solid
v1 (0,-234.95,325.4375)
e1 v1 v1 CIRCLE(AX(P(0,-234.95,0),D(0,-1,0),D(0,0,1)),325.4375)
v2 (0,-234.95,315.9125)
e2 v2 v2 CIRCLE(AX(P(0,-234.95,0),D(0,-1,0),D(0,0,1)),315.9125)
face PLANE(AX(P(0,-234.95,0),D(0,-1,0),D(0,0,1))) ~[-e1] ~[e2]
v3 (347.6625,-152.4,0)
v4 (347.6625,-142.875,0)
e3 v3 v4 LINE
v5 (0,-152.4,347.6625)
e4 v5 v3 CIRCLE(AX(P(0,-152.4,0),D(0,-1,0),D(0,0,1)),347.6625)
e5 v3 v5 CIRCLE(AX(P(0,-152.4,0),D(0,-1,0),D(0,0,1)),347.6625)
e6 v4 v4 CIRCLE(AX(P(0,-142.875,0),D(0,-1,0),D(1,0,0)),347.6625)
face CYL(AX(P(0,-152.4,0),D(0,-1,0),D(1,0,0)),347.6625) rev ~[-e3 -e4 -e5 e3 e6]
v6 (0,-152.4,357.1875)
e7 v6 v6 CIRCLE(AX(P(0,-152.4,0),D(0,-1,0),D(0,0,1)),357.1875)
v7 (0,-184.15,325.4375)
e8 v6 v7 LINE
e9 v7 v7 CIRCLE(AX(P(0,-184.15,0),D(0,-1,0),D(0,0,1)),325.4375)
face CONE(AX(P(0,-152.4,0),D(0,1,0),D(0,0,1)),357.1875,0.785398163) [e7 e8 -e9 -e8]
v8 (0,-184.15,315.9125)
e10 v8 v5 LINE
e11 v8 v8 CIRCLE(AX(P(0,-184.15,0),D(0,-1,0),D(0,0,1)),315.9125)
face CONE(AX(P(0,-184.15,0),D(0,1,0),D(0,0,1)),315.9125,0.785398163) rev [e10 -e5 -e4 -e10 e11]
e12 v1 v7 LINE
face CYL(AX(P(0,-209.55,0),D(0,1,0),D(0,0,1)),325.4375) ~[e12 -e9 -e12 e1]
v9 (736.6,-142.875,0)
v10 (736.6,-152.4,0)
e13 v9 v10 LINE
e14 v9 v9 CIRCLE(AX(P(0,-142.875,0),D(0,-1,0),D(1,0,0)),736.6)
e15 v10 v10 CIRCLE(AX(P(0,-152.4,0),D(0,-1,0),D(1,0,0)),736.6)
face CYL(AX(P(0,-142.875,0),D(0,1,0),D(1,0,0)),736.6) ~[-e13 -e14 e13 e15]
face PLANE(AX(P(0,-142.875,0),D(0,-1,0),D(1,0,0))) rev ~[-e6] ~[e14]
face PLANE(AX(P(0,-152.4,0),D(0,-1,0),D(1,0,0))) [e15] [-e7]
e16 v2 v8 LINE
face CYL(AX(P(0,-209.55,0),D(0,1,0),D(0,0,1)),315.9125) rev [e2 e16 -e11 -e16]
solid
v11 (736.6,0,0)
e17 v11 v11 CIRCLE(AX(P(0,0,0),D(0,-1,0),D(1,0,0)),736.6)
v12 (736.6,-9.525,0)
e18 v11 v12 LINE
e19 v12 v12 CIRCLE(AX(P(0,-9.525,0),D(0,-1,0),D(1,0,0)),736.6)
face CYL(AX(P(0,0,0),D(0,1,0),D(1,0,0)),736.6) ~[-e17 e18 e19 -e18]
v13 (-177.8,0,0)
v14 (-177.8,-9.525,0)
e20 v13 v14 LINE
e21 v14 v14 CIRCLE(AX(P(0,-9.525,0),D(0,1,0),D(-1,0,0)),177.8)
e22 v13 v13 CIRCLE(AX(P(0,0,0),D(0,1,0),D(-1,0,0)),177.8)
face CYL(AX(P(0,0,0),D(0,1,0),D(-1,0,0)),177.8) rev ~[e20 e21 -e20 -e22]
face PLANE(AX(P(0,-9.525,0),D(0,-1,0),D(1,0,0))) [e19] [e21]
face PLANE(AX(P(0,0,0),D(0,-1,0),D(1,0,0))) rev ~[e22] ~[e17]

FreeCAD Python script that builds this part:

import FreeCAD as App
import Part
import Sketcher
from FreeCAD import Vector
Q = App.Units.Quantity


def add_polygon(sketch, points):
    """Adds a closed chain of lines whose ends are joined by coincident constraints."""
    first, n = sketch.GeometryCount, len(points)
    for a, b in zip(points, points[1:] + points[:1]):
        sketch.addGeometry(Part.LineSegment(App.Vector(*a, 0), App.Vector(*b, 0)), False)
    for i in range(n):
        sketch.addConstraint(Sketcher.Constraint("Coincident", first + i, 2, first + (i + 1) % n, 1))

doc = App.newDocument("Part")
body = doc.addObject("PartDesign::Body", "Body")

sketch1 = body.newObject("Sketcher::SketchObject", "Sketch")
sketch1.AttachmentSupport = (doc.getObject("XZ_Plane"), [""])
sketch1.MapMode = "FlatFace"
sketch1.addGeometry(Part.Circle(Vector(0, 0, 0), Vector(0, 0, 1), 737), False)
sketch1.addConstraint([
    Sketcher.Constraint("Coincident", 0, 3, -1, 1),
    Sketcher.Constraint("Diameter", 0, Q("58 in")),
])
pad1 = body.newObject("PartDesign::Pad", "Pad")
pad1.Profile = sketch1
pad1.Length = Q("0.375 in")

sketch2 = body.newObject("Sketcher::SketchObject", "Sketch001")
sketch2.AttachmentSupport = (doc.getObject("XZ_Plane"), [""])
sketch2.MapMode = "FlatFace"
sketch2.addGeometry(Part.Circle(Vector(0, 0, 0), Vector(0, 0, 1), 178), False)
sketch2.addConstraint([
    Sketcher.Constraint("Coincident", 0, 3, -1, 1),
    Sketcher.Constraint("Diameter", 0, Q("14 in")),
])
pocket1 = body.newObject("PartDesign::Pocket", "Pocket")
pocket1.Profile = sketch2
pocket1.Length = Q("1 in")
pocket1.Reversed = True
body2 = doc.addObject("PartDesign::Body", "Body001")

sketch3 = body2.newObject("Sketcher::SketchObject", "Sketch002")
sketch3.AttachmentSupport = (doc.getObject("XZ_Plane001"), [""])
sketch3.MapMode = "FlatFace"
sketch3.AttachmentOffset = App.Placement(Vector(0, 0, 5.625 * 25.4), App.Rotation())
sketch3.addGeometry(Part.Circle(Vector(0, 0, 0), Vector(0, 0, 1), 737), False)
sketch3.addConstraint([
    Sketcher.Constraint("Coincident", 0, 3, -1, 1),
    Sketcher.Constraint("Diameter", 0, Q("58 in")),
])
pad2 = body2.newObject("PartDesign::Pad", "Pad001")
pad2.Profile = sketch3
pad2.Length = Q("0.375 in")

sketch4 = body2.newObject("Sketcher::SketchObject", "Sketch003")
sketch4.AttachmentSupport = (doc.getObject("YZ_Plane001"), [""])
sketch4.MapMode = "FlatFace"
add_polygon(sketch4, [(-184, 316), (-152, 348), (-152, 357), (-184, 325), (-235, 325), (-235, 316)])
sketch4.addConstraint([
    Sketcher.Constraint("Vertical", 1),
    Sketcher.Constraint("Horizontal", 3),
    Sketcher.Constraint("Vertical", 4),
    Sketcher.Constraint("Horizontal", 5),
    Sketcher.Constraint("Parallel", 0, 2),
    Sketcher.Constraint("Vertical", 2, 2, 5, 2),
    Sketcher.Constraint("DistanceX", 3, 2, 3, 1, Q("2 in")),
    Sketcher.Constraint("DistanceX", 0, 2, -1, 1, Q("6 in")),
    Sketcher.Constraint("Angle", 0, Q("45 deg")),
    Sketcher.Constraint("DistanceY", 1, 1, 1, 2, Q("0.375 in")),
    Sketcher.Constraint("DistanceX", 2, 2, -1, 1, Q("7.25 in")),
    Sketcher.Constraint("DistanceY", -1, 1, 0, 2, Q("13.6875 in")),
])
revolution = body2.newObject("PartDesign::Revolution", "Revolution")
revolution.Profile = sketch4
revolution.ReferenceAxis = (sketch4, ["H_Axis"])
revolution.Angle = 360

sketch5 = body2.newObject("Sketcher::SketchObject", "Sketch004")
sketch5.AttachmentSupport = (doc.getObject("XZ_Plane001"), [""])
sketch5.MapMode = "FlatFace"
sketch5.AttachmentOffset = App.Placement(Vector(0, 0, 6 * 25.4), App.Rotation())
sketch5.addGeometry(Part.Circle(Vector(0, 0, 0), Vector(0, 0, 1), 348), False)
sketch5.addConstraint([
    Sketcher.Constraint("Coincident", 0, 3, -1, 1),
    Sketcher.Constraint("Diameter", 0, Q("27.375 in")),
])
pocket2 = body2.newObject("PartDesign::Pocket", "Pocket001")
pocket2.Profile = sketch5
pocket2.Length = Q("1 in")

doc.recompute()
